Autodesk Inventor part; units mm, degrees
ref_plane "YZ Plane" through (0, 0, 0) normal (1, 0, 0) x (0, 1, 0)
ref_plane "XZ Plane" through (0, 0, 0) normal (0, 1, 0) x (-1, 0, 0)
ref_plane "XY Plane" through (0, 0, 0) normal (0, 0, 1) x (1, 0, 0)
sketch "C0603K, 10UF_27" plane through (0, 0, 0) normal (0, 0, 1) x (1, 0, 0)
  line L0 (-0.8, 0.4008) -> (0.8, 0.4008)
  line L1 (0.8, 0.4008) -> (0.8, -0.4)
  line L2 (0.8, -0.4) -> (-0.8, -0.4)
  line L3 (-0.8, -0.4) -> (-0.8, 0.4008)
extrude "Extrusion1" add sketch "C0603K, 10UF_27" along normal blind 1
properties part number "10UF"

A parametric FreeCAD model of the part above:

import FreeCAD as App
import Part
import Sketcher
from FreeCAD import Vector


def add_polygon(sketch, points):
    """Adds a closed chain of lines whose ends are joined by coincident constraints."""
    first, n = sketch.GeometryCount, len(points)
    for a, b in zip(points, points[1:] + points[:1]):
        sketch.addGeometry(Part.LineSegment(App.Vector(*a, 0), App.Vector(*b, 0)), False)
    for i in range(n):
        sketch.addConstraint(Sketcher.Constraint("Coincident", first + i, 2, first + (i + 1) % n, 1))

doc = App.newDocument("Part")
body = doc.addObject("PartDesign::Body", "Body")

sketch1 = doc.addObject("Sketcher::SketchObject", "Sketch")
body.addObject(sketch1)
sketch1.AttachmentSupport = (doc.XY_Plane, [""])
sketch1.MapMode = "FlatFace"
add_polygon(sketch1, [(0.8, 0.4008), (-0.8, 0.4008), (-0.8, -0.4), (0.8, -0.4)])
sketch1.addConstraint([
    Sketcher.Constraint("Horizontal", 0),
    Sketcher.Constraint("Vertical", 1),
    Sketcher.Constraint("Horizontal", 2),
    Sketcher.Constraint("Vertical", 3),
    Sketcher.Constraint("DistanceX", 0, 2, 0, 1, 1.6),
    Sketcher.Constraint("DistanceX", 0, 2, -1, 1, 0.8),
    Sketcher.Constraint("DistanceY", 1, 2, -1, 1, 0.4),
    Sketcher.Constraint("DistanceY", 1, 2, 1, 1, 0.8008),
])
pad1 = doc.addObject("PartDesign::Pad", "Pad")
body.addObject(pad1)
pad1.Profile = sketch1
pad1.Length = 1

doc.recompute()
